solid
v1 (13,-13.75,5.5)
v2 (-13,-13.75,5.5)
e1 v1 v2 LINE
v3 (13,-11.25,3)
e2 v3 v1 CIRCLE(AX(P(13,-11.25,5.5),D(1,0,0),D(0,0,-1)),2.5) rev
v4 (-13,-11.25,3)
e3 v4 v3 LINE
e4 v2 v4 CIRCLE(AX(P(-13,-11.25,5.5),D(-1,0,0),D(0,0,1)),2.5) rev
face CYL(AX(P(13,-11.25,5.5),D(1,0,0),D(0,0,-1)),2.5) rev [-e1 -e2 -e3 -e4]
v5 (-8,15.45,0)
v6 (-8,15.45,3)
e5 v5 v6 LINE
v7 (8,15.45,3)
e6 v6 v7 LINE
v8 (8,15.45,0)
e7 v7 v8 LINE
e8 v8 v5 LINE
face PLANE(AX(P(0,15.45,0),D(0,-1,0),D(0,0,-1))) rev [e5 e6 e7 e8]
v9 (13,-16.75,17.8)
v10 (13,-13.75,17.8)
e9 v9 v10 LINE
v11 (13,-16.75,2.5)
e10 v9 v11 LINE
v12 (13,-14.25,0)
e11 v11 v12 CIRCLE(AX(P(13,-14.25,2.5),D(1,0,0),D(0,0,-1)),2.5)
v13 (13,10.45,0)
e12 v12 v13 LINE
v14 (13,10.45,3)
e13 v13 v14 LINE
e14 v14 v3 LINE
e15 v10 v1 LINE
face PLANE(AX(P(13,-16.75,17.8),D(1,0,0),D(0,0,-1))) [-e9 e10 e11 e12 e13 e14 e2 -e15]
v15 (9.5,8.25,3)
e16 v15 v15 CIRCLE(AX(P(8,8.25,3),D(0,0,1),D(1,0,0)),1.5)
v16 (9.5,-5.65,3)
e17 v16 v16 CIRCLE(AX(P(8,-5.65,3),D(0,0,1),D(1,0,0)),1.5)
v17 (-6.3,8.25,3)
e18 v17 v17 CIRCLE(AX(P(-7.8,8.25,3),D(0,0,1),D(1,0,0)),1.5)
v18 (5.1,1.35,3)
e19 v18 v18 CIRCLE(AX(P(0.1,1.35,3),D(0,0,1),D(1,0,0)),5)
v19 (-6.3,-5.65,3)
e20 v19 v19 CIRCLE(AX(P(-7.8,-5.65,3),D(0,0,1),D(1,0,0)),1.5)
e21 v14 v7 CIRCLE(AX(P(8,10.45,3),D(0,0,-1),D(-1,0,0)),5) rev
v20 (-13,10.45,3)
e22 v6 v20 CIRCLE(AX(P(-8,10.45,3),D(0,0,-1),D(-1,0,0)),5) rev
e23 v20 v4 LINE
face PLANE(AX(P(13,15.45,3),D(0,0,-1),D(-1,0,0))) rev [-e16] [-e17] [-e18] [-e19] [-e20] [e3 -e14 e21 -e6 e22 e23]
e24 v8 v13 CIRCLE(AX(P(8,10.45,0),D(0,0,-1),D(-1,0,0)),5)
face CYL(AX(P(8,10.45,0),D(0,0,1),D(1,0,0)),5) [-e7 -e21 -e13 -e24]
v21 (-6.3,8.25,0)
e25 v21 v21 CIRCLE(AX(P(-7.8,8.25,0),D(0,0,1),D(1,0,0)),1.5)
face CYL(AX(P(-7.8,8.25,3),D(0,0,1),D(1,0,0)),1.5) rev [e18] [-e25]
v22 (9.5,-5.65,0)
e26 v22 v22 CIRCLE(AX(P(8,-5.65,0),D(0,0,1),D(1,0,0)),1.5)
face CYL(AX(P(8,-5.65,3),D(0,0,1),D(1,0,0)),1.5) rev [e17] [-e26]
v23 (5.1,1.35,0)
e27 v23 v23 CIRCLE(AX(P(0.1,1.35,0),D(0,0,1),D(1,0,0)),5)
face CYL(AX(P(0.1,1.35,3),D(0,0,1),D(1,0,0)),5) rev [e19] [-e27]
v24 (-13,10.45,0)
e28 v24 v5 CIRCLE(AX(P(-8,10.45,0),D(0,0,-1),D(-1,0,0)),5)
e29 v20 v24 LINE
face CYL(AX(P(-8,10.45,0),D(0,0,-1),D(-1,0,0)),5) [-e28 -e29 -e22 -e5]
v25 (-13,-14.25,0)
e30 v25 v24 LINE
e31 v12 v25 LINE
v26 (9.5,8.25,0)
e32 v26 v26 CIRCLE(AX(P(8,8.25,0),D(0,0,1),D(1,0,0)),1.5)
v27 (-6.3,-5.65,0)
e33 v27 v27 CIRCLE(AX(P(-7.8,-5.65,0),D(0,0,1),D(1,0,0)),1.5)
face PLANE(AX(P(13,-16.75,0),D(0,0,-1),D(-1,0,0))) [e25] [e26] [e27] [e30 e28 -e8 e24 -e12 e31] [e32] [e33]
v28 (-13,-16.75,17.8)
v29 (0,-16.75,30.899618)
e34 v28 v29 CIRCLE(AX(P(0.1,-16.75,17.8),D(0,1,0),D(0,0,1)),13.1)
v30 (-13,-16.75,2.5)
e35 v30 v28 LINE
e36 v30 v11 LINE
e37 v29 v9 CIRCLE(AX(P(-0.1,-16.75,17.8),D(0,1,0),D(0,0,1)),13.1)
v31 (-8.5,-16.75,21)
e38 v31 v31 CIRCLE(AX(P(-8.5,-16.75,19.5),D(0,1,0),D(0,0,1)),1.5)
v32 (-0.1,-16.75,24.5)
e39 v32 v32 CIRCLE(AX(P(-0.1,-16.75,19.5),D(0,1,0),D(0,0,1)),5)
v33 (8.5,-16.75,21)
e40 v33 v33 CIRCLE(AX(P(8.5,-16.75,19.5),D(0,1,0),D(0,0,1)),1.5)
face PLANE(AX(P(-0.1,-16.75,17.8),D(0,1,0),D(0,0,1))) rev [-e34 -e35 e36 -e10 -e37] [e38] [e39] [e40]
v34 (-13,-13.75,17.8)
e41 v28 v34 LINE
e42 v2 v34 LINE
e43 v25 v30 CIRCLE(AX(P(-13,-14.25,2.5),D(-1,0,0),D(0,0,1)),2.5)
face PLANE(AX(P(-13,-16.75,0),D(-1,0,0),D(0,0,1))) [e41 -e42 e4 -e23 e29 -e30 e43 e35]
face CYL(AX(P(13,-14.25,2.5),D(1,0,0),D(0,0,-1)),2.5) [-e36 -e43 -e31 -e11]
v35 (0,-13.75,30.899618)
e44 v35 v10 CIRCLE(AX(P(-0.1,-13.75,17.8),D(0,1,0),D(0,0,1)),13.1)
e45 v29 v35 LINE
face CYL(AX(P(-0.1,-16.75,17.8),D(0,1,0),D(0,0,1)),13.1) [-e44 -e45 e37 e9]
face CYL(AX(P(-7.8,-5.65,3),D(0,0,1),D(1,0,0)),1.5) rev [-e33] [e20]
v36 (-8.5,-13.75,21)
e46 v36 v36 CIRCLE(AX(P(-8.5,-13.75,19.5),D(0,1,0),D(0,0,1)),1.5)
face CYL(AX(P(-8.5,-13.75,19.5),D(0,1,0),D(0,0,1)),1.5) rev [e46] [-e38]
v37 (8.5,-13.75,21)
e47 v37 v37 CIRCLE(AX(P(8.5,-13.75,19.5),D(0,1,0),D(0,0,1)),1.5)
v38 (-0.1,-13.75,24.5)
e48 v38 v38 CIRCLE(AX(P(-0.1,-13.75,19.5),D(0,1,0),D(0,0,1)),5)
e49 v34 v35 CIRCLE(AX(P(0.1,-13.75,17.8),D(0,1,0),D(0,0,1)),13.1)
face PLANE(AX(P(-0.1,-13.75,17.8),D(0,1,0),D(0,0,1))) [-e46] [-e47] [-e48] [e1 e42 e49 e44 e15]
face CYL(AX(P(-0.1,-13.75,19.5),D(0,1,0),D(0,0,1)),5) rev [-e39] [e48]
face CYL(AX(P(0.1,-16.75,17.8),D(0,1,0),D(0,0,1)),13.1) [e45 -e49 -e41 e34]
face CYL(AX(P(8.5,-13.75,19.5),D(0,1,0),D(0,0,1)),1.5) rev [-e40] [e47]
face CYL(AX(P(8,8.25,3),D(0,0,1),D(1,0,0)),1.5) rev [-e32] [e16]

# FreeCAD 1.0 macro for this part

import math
import FreeCAD as App
import Part
import Sketcher


def edges_at(feature, points):
    """Names of the edges that pass closest to the given points."""
    edges = feature.Shape.Edges
    near = lambda p: min(range(len(edges)), key=lambda i: edges[i].distToShape(Part.Vertex(*p))[0])
    return sorted({f"Edge{near(p) + 1}" for p in points})

doc = App.newDocument("Part")
body = doc.addObject("PartDesign::Body", "Body")

# Sketch on XZ plane
sketch1 = doc.addObject("Sketcher::SketchObject", "Sketch")
body.addObject(sketch1)
sketch1.AttachmentSupport = (doc.XZ_Plane, [""])
sketch1.MapMode = "FlatFace"
sketch1.AttachmentOffset = App.Placement(App.Vector(0, 0, 13.75), App.Rotation())
sketch1.addGeometry([
    Part.LineSegment(App.Vector(13, 18, 0), App.Vector(13, 0, 0)),  # 0
    Part.LineSegment(App.Vector(13, 0, 0), App.Vector(-13, 0, 0)),  # 1
    Part.LineSegment(App.Vector(-13, 0, 0), App.Vector(-13, 18, 0)),  # 2
    Part.ArcOfCircle(Part.Circle(App.Vector(0, 18, 0), App.Vector(0, 0, 1), 13), math.radians(90), math.radians(180)),  # 3
    Part.ArcOfCircle(Part.Circle(App.Vector(0, 18, 0), App.Vector(0, 0, 1), 13), math.radians(0), math.radians(90)),  # 4
], False)
sketch1.addConstraint([
    Sketcher.Constraint("Coincident", 0, 2, 1, 1),
    Sketcher.Constraint("Coincident", 1, 2, 2, 1),
    Sketcher.Constraint("Tangent", 2, 2, 3, 2),
    Sketcher.Constraint("Coincident", 3, 1, 4, 2),
    Sketcher.Constraint("Tangent", 4, 1, 0, 1),
    Sketcher.Constraint("Vertical", 0),
    Sketcher.Constraint("Horizontal", 1),
    Sketcher.Constraint("Vertical", 2),
    Sketcher.Constraint("Equal", 3, 4),
    Sketcher.Constraint("Symmetric", 0, 2, 1, 2, -1, 1),
    Sketcher.Constraint("PointOnObject", 3, 1, -2),
    Sketcher.Constraint("Radius", 3, 13.1),
    Sketcher.Constraint("DistanceX", 1, 2, 1, 1, 26.0),
    Sketcher.Constraint("DistanceY", 0, 2, 0, 1, 17.8),
])
pad1 = doc.addObject("PartDesign::Pad", "Pad")
body.addObject(pad1)
pad1.Profile = sketch1
pad1.Length = 3

# Sketch on XZ plane
sketch2 = doc.addObject("Sketcher::SketchObject", "Sketch001")
body.addObject(sketch2)
sketch2.AttachmentSupport = (doc.XZ_Plane, [""])
sketch2.MapMode = "FlatFace"
sketch2.AttachmentOffset = App.Placement(App.Vector(0, 0, 13.75), App.Rotation())
sketch2.addGeometry([
    Part.LineSegment(App.Vector(13, 3, 0), App.Vector(13, 0, 0)),
    Part.LineSegment(App.Vector(13, 0, 0), App.Vector(-13, 0, 0)),
    Part.LineSegment(App.Vector(-13, 0, 0), App.Vector(-13, 3, 0)),
    Part.LineSegment(App.Vector(-13, 3, 0), App.Vector(13, 3, 0)),
], False)
sketch2.addConstraint([
    Sketcher.Constraint("Coincident", 0, 2, 1, 1),
    Sketcher.Constraint("Coincident", 1, 2, 2, 1),
    Sketcher.Constraint("Coincident", 2, 2, 3, 1),
    Sketcher.Constraint("Coincident", 3, 2, 0, 1),
    Sketcher.Constraint("Vertical", 0),
    Sketcher.Constraint("Horizontal", 1),
    Sketcher.Constraint("Vertical", 2),
    Sketcher.Constraint("Horizontal", 3),
    Sketcher.Constraint("Symmetric", 0, 2, 1, 2, -1, 1),
    Sketcher.Constraint("DistanceX", 1, 2, 1, 1, 26.0),
    Sketcher.Constraint("DistanceY", 0, 2, 0, 1, 3.0),
])
pad2 = doc.addObject("PartDesign::Pad", "Pad001")
body.addObject(pad2)
pad2.Profile = sketch2
pad2.Length = 29.2
pad2.Reversed = True

# Sketch on XZ plane
sketch3 = doc.addObject("Sketcher::SketchObject", "Sketch002")
body.addObject(sketch3)
sketch3.AttachmentSupport = (doc.XZ_Plane, [""])
sketch3.MapMode = "FlatFace"
sketch3.AttachmentOffset = App.Placement(App.Vector(0, 0, 13.75), App.Rotation())
sketch3.addGeometry(Part.Circle(App.Vector(0, 20, 0), App.Vector(0, 0, 1), 5), False)
sketch3.addConstraint([
    Sketcher.Constraint("Diameter", 0, 10.0),
    Sketcher.Constraint("DistanceX", 0, 3, -1, 1, 0.1),
    Sketcher.Constraint("DistanceY", -1, 1, 0, 3, 19.5),
])
doc.recompute()
hole = doc.addObject("PartDesign::Hole", "Hole")
body.addObject(hole)
hole.Profile = sketch3
hole.ThreadType = "None"
hole.Diameter = 10
hole.DepthType = "ThroughAll"
hole.Reversed = True

# Sketch on XZ plane
sketch4 = doc.addObject("Sketcher::SketchObject", "Sketch003")
body.addObject(sketch4)
sketch4.AttachmentSupport = (doc.XZ_Plane, [""])
sketch4.MapMode = "FlatFace"
sketch4.AttachmentOffset = App.Placement(App.Vector(0, 0, 13.75), App.Rotation())
sketch4.addGeometry([
    Part.Circle(App.Vector(8.5, 19.5, 0), App.Vector(0, 0, 1), 1.5),
    Part.Circle(App.Vector(-8.5, 19.5, 0), App.Vector(0, 0, 1), 1.5),
], False)
sketch4.addConstraint([
    Sketcher.Constraint("Equal", 0, 1),
    Sketcher.Constraint("Symmetric", 0, 3, 1, 3, -2),
    Sketcher.Constraint("Diameter", 0, 3.0),
    Sketcher.Constraint("DistanceX", 1, 3, 0, 3, 17.0),
    Sketcher.Constraint("DistanceY", -1, 1, 0, 3, 19.5),
])
doc.recompute()
hole2 = doc.addObject("PartDesign::Hole", "Hole001")
body.addObject(hole2)
hole2.Profile = sketch4
hole2.ThreadType = "None"
hole2.Diameter = 3
hole2.DepthType = "ThroughAll"
hole2.Reversed = True

# Sketch on XY plane
sketch5 = doc.addObject("Sketcher::SketchObject", "Sketch004")
body.addObject(sketch5)
sketch5.AttachmentSupport = (doc.XY_Plane, [""])
sketch5.MapMode = "FlatFace"
sketch5.AttachmentOffset = App.Placement(App.Vector(0, 0, 3), App.Rotation())
sketch5.addGeometry(Part.Circle(App.Vector(0, 1, 0), App.Vector(0, 0, 1), 5), False)
sketch5.addConstraint([
    Sketcher.Constraint("Diameter", 0, 10.0),
    Sketcher.Constraint("DistanceX", -1, 1, 0, 3, 0.1),
    Sketcher.Constraint("DistanceY", -1, 1, 0, 3, 1.35),
])
doc.recompute()
hole3 = doc.addObject("PartDesign::Hole", "Hole002")
body.addObject(hole3)
hole3.Profile = sketch5
hole3.ThreadType = "None"
hole3.Diameter = 10
hole3.DepthType = "ThroughAll"

# Sketch on XY plane
sketch6 = doc.addObject("Sketcher::SketchObject", "Sketch005")
body.addObject(sketch6)
sketch6.AttachmentSupport = (doc.XY_Plane, [""])
sketch6.MapMode = "FlatFace"
sketch6.AttachmentOffset = App.Placement(App.Vector(0, 0, 3), App.Rotation())
sketch6.addGeometry([
    Part.Circle(App.Vector(-7.8, 8.2, 0), App.Vector(0, 0, 1), 1.5),
    Part.Circle(App.Vector(8, -5.7, 0), App.Vector(0, 0, 1), 1.5),
    Part.Circle(App.Vector(-7.8, -5.7, 0), App.Vector(0, 0, 1), 1.5),
    Part.Circle(App.Vector(8, 8.2, 0), App.Vector(0, 0, 1), 1.5),
], False)
sketch6.addConstraint([
    Sketcher.Constraint("Equal", 0, 1),
    Sketcher.Constraint("Equal", 1, 2),
    Sketcher.Constraint("Equal", 2, 3),
    Sketcher.Constraint("Horizontal", 1, 3, 2, 3),
    Sketcher.Constraint("Horizontal", 0, 3, 3, 3),
    Sketcher.Constraint("Vertical", 0, 3, 2, 3),
    Sketcher.Constraint("Vertical", 1, 3, 3, 3),
    Sketcher.Constraint("Diameter", 0, 3.0),
    Sketcher.Constraint("DistanceX", -1, 1, 1, 3, 8.0),
    Sketcher.Constraint("DistanceX", 0, 3, -1, 1, 7.8),
    Sketcher.Constraint("DistanceY", 1, 3, 0, 3, 13.9),
    Sketcher.Constraint("DistanceY", -1, 1, 0, 3, 8.25),
])
doc.recompute()
hole4 = doc.addObject("PartDesign::Hole", "Hole003")
body.addObject(hole4)
hole4.Profile = sketch6
hole4.ThreadType = "None"
hole4.Diameter = 3
hole4.DepthType = "ThroughAll"
doc.recompute()

fillet = doc.addObject("PartDesign::Fillet", "Fillet")
body.addObject(fillet)
fillet.Base = (hole4, edges_at(hole4, [(0, -16.75, 0), (0, -13.75, 3)]))
fillet.Radius = 2.5
doc.recompute()

fillet2 = doc.addObject("PartDesign::Fillet", "Fillet001")
body.addObject(fillet2)
fillet2.Base = (fillet, edges_at(fillet, [(13, 15.45, 1.5), (-13, 15.45, 1.5)]))
fillet2.Radius = 5

doc.recompute()
